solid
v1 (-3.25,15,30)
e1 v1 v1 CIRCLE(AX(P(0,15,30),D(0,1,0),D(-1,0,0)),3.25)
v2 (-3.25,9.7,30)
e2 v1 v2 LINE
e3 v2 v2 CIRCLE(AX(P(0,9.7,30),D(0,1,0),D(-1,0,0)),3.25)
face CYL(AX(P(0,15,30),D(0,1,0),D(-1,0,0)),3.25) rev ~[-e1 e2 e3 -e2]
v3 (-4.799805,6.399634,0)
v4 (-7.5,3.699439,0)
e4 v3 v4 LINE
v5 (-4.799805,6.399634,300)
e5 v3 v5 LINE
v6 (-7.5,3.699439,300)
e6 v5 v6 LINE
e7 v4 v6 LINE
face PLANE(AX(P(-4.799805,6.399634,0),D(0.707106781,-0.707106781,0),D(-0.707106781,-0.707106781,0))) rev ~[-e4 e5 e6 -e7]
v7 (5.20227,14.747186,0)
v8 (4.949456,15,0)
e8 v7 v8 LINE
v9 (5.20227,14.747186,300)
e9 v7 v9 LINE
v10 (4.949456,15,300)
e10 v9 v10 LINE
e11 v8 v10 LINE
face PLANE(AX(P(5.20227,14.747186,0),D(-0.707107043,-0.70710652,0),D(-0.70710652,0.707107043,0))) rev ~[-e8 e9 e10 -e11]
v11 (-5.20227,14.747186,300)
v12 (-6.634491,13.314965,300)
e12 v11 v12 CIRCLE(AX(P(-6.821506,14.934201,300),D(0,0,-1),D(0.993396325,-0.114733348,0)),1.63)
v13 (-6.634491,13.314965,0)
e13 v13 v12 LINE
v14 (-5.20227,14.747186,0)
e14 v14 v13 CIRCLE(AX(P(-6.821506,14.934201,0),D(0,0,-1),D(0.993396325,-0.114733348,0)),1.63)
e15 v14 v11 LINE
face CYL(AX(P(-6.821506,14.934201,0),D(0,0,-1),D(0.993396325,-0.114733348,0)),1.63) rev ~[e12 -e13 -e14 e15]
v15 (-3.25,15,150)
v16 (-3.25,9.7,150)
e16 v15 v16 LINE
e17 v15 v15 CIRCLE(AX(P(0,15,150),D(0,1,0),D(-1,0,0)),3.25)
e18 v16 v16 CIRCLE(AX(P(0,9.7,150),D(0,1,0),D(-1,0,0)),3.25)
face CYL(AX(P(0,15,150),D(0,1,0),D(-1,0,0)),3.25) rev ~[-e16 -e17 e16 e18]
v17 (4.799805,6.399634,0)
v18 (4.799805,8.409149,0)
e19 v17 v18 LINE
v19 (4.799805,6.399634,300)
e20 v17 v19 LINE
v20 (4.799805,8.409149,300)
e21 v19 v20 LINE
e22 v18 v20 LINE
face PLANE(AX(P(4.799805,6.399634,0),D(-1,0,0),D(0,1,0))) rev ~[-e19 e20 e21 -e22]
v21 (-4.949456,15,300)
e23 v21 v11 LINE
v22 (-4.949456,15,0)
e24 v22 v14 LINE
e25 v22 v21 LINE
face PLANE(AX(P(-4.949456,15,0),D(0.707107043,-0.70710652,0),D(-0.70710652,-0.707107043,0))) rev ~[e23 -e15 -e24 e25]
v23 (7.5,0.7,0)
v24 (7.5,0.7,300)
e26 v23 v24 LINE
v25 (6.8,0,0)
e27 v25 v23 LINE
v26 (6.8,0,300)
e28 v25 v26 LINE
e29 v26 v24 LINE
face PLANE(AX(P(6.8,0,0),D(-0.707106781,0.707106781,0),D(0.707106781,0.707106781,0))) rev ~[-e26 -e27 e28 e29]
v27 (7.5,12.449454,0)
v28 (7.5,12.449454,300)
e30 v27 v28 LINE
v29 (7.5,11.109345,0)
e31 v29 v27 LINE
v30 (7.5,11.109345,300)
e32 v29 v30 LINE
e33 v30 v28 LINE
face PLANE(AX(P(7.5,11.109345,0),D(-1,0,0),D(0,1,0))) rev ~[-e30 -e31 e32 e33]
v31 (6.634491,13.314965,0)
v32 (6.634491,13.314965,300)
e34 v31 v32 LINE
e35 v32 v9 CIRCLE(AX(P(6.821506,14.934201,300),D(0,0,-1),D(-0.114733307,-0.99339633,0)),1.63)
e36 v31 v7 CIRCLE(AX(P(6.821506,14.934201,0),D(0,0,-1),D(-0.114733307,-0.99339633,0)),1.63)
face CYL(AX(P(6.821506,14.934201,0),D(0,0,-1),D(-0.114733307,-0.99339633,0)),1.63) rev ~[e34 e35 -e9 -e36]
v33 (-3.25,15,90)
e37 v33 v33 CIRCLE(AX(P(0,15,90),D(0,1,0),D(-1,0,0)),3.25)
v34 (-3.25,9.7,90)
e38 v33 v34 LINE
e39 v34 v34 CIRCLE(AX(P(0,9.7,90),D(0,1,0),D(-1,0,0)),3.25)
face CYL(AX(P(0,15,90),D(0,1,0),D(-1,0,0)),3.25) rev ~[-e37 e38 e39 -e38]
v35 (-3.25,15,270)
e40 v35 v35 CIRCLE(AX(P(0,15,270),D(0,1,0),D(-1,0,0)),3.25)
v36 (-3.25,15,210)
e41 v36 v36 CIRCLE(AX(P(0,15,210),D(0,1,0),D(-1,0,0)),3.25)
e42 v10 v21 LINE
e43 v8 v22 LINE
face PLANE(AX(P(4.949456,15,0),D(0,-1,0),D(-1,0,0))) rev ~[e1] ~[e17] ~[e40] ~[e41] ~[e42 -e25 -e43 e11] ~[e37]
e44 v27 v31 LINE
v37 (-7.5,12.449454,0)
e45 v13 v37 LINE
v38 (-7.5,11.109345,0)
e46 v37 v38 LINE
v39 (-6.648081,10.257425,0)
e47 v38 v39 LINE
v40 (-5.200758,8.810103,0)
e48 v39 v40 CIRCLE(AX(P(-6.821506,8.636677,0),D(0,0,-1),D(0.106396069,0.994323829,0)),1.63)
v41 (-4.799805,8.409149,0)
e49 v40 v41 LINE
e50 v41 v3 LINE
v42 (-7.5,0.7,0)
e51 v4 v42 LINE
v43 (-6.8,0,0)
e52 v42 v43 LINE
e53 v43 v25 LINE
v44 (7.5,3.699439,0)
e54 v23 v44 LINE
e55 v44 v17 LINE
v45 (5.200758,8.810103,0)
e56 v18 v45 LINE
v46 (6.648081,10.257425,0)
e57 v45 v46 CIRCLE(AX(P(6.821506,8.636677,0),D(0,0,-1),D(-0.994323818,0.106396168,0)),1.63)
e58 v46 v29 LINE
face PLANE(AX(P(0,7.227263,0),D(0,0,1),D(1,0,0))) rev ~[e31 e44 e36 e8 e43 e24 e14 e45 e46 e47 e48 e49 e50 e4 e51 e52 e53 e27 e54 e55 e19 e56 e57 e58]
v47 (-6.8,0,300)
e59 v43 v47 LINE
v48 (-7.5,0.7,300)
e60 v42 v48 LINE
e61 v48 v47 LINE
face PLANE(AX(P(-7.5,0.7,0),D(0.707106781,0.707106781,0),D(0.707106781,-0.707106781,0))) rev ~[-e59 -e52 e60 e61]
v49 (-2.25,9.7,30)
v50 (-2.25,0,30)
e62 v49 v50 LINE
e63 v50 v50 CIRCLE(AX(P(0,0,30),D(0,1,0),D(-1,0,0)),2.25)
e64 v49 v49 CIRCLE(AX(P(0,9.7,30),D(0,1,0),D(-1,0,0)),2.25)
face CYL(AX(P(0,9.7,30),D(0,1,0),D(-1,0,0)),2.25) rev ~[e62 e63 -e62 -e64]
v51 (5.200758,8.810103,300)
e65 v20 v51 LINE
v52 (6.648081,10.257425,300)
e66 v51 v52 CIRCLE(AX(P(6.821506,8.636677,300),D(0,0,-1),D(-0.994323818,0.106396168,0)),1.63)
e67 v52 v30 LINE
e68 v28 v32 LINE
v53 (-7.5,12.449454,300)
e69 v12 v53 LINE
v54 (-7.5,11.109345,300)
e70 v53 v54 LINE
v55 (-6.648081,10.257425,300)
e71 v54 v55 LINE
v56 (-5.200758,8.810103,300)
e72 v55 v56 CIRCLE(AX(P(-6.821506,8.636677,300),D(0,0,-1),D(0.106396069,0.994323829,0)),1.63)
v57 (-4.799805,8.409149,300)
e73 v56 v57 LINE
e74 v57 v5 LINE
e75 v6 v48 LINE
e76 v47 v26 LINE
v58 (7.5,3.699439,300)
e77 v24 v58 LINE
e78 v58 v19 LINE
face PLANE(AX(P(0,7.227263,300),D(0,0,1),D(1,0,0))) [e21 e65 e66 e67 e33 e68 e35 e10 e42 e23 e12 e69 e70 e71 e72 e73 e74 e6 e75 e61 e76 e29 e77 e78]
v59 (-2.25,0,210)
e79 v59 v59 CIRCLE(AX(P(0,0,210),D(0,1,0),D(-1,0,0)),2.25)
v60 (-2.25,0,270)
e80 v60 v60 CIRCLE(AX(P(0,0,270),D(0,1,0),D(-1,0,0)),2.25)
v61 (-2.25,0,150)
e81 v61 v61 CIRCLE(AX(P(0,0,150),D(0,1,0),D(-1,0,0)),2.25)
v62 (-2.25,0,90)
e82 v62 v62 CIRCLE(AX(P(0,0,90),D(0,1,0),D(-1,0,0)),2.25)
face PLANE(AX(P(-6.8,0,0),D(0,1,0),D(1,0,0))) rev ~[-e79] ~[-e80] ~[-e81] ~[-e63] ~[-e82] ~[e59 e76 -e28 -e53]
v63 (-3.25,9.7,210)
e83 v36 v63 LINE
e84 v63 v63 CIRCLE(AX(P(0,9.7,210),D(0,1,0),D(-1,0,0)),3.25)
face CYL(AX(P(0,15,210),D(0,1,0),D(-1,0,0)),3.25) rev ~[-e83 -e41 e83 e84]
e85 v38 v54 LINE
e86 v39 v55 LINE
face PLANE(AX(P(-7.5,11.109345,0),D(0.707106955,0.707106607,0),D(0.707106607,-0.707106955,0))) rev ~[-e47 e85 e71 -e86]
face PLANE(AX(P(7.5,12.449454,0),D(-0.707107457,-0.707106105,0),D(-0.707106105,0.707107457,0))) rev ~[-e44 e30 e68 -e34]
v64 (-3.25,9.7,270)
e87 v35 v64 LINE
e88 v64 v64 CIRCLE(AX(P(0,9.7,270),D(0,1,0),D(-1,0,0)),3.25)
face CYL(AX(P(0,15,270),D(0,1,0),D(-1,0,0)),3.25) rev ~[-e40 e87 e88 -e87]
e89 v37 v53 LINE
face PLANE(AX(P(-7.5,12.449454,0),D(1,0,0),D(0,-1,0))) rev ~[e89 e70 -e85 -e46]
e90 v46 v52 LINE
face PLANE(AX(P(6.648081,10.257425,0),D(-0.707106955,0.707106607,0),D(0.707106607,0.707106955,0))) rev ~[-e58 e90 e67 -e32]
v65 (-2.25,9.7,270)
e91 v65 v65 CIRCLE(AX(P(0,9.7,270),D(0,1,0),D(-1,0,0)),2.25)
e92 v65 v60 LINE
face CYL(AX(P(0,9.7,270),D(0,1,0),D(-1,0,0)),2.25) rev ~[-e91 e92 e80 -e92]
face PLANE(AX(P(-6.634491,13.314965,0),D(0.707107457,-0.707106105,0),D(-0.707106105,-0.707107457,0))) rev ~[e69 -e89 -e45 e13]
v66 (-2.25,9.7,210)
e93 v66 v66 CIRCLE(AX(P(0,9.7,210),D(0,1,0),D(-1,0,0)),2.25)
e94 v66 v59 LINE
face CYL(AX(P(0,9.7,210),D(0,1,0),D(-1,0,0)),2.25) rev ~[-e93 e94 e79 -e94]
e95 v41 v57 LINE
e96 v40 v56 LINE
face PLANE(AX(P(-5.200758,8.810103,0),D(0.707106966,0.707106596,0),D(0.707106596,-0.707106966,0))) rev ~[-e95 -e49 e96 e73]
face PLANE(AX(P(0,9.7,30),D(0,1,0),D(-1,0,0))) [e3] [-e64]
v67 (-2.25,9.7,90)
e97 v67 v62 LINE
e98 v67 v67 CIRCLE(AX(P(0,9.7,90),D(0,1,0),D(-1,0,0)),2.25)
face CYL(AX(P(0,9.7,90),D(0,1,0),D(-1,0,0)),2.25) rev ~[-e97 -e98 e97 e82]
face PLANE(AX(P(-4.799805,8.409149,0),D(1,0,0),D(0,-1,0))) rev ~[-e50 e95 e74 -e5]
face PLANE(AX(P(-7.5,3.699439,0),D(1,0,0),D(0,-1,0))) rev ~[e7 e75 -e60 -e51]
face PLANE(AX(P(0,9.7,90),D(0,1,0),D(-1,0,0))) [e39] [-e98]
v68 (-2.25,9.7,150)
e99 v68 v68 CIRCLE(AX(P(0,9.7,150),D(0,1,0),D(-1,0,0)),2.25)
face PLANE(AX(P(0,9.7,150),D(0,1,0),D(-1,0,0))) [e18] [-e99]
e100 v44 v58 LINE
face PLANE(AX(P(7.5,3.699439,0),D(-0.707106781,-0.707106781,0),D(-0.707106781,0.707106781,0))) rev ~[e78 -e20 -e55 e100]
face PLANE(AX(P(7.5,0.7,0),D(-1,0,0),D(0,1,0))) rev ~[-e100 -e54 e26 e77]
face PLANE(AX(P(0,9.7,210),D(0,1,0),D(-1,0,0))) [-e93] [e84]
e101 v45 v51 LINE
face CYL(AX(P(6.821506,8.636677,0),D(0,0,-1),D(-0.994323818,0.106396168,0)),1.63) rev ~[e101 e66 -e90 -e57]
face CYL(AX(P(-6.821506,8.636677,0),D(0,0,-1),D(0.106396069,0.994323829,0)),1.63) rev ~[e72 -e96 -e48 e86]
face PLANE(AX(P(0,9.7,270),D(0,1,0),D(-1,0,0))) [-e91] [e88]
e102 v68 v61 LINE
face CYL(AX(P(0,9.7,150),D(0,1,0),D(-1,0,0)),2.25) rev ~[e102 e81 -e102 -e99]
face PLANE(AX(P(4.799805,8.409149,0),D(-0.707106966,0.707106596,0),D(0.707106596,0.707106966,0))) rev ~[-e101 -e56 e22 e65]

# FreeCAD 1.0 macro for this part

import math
import FreeCAD as App
import Part
import Sketcher
from FreeCAD import Vector
Q = App.Units.Quantity

doc = App.newDocument("Part")
params = doc.addObject("Spreadsheet::Sheet", "Params")
for row, (alias, value) in enumerate([
    ("sketch1_radius", "1.63 mm"),
    ("sketch1_width", "13.6 mm"),
    ("pad1_length", "300 mm"),
    ("sketch2_diameter", "6.5 mm"),
    ("pocket1_length", "5.3 mm"),
    ("sketch3_diameter", "4.5 mm"),
], start=1):
    params.set(f"A{row}", alias)
    params.set(f"B{row}", "=" + value)
    params.setAlias(f"B{row}", alias)

body = doc.addObject("PartDesign::Body", "Body")

# Sketch on XY plane
sketch1 = doc.addObject("Sketcher::SketchObject", "Sketch")
body.addObject(sketch1)
sketch1.AttachmentSupport = (doc.XY_Plane, [""])
sketch1.MapMode = "FlatFace"
sketch1.addGeometry([
    Part.LineSegment(Vector(6.8, 0, 0), Vector(7.5, 0.7, 0)),  # 0
    Part.LineSegment(Vector(7.5, 0.7, 0), Vector(7.5, 3.7, 0)),  # 1
    Part.LineSegment(Vector(7.5, 3.7, 0), Vector(4.8, 6.4, 0)),  # 2
    Part.LineSegment(Vector(4.8, 6.4, 0), Vector(4.8, 8.41, 0)),  # 3
    Part.LineSegment(Vector(4.8, 8.41, 0), Vector(5.2, 8.81, 0)),  # 4
    Part.ArcOfCircle(Part.Circle(Vector(6.82, 8.64, 0), Vector(0, 0, 1), 1.63), math.radians(96), math.radians(174)),  # 5
    Part.LineSegment(Vector(6.65, 10.26, 0), Vector(7.5, 11.11, 0)),  # 6
    Part.LineSegment(Vector(7.5, 11.11, 0), Vector(7.5, 12.45, 0)),  # 7
    Part.LineSegment(Vector(7.5, 12.45, 0), Vector(6.63, 13.31, 0)),  # 8
    Part.ArcOfCircle(Part.Circle(Vector(6.82, 14.93, 0), Vector(0, 0, 1), 1.63), math.radians(-173), math.radians(-97)),  # 9
    Part.LineSegment(Vector(5.2, 14.75, 0), Vector(4.95, 15, 0)),  # 10
    Part.LineSegment(Vector(4.95, 15, 0), Vector(-4.95, 15, 0)),  # 11
    Part.LineSegment(Vector(-4.95, 15, 0), Vector(-5.2, 14.75, 0)),  # 12
    Part.ArcOfCircle(Part.Circle(Vector(-6.82, 14.93, 0), Vector(0, 0, 1), 1.63), math.radians(-83), math.radians(-7)),  # 13
    Part.LineSegment(Vector(-6.63, 13.31, 0), Vector(-7.5, 12.45, 0)),  # 14
    Part.LineSegment(Vector(-7.5, 12.45, 0), Vector(-7.5, 11.11, 0)),  # 15
    Part.LineSegment(Vector(-7.5, 11.11, 0), Vector(-6.65, 10.26, 0)),  # 16
    Part.ArcOfCircle(Part.Circle(Vector(-6.82, 8.64, 0), Vector(0, 0, 1), 1.63), math.radians(6), math.radians(84)),  # 17
    Part.LineSegment(Vector(-5.2, 8.81, 0), Vector(-4.8, 8.41, 0)),  # 18
    Part.LineSegment(Vector(-4.8, 8.41, 0), Vector(-4.8, 6.4, 0)),  # 19
    Part.LineSegment(Vector(-4.8, 6.4, 0), Vector(-7.5, 3.7, 0)),  # 20
    Part.LineSegment(Vector(-7.5, 3.7, 0), Vector(-7.5, 0.7, 0)),  # 21
    Part.LineSegment(Vector(-7.5, 0.7, 0), Vector(-6.8, 0, 0)),  # 22
    Part.LineSegment(Vector(-6.8, 0, 0), Vector(6.8, 0, 0)),  # 23
], False)
sketch1.addConstraint([
    Sketcher.Constraint("Coincident", 0, 2, 1, 1),
    Sketcher.Constraint("Coincident", 1, 2, 2, 1),
    Sketcher.Constraint("Coincident", 2, 2, 3, 1),
    Sketcher.Constraint("Coincident", 3, 2, 4, 1),
    Sketcher.Constraint("Coincident", 4, 2, 5, 2),
    Sketcher.Constraint("Coincident", 5, 1, 6, 1),
    Sketcher.Constraint("Coincident", 6, 2, 7, 1),
    Sketcher.Constraint("Coincident", 7, 2, 8, 1),
    Sketcher.Constraint("Coincident", 8, 2, 9, 2),
    Sketcher.Constraint("Coincident", 9, 1, 10, 1),
    Sketcher.Constraint("Coincident", 10, 2, 11, 1),
    Sketcher.Constraint("Coincident", 11, 2, 12, 1),
    Sketcher.Constraint("Coincident", 12, 2, 13, 2),
    Sketcher.Constraint("Coincident", 13, 1, 14, 1),
    Sketcher.Constraint("Coincident", 14, 2, 15, 1),
    Sketcher.Constraint("Coincident", 15, 2, 16, 1),
    Sketcher.Constraint("Coincident", 16, 2, 17, 2),
    Sketcher.Constraint("Coincident", 17, 1, 18, 1),
    Sketcher.Constraint("Coincident", 18, 2, 19, 1),
    Sketcher.Constraint("Coincident", 19, 2, 20, 1),
    Sketcher.Constraint("Coincident", 20, 2, 21, 1),
    Sketcher.Constraint("Coincident", 21, 2, 22, 1),
    Sketcher.Constraint("Coincident", 22, 2, 23, 1),
    Sketcher.Constraint("Coincident", 23, 2, 0, 1),
    Sketcher.Constraint("Vertical", 1),
    Sketcher.Constraint("Vertical", 3),
    Sketcher.Constraint("Vertical", 7),
    Sketcher.Constraint("Horizontal", 11),
    Sketcher.Constraint("Vertical", 15),
    Sketcher.Constraint("Vertical", 19),
    Sketcher.Constraint("Vertical", 21),
    Sketcher.Constraint("Horizontal", 23),
    Sketcher.Constraint("Equal", 5, 9),
    Sketcher.Constraint("Equal", 9, 13),
    Sketcher.Constraint("Equal", 13, 17),
    Sketcher.Constraint("Symmetric", 22, 2, 23, 2, -1, 1),
    Sketcher.Constraint("Symmetric", 9, 3, 13, 3, -2),
    Sketcher.Constraint("Symmetric", 5, 3, 17, 3, -2),
    Sketcher.Constraint("Symmetric", 7, 2, 14, 2, -2),
    Sketcher.Constraint("Symmetric", 3, 2, 18, 2, -2),
    Sketcher.Constraint("Symmetric", 1, 2, 20, 2, -2),
    Sketcher.Constraint("Perpendicular", 0, 2),
    Sketcher.Constraint("Perpendicular", 2, 4),
    Sketcher.Constraint("Parallel", 4, 6),
    Sketcher.Constraint("Perpendicular", 6, 8),
    Sketcher.Constraint("Parallel", 8, 10),
    Sketcher.Constraint("Perpendicular", 10, 12),
    Sketcher.Constraint("Parallel", 12, 14),
    Sketcher.Constraint("Perpendicular", 14, 16),
    Sketcher.Constraint("Parallel", 16, 18),
    Sketcher.Constraint("Perpendicular", 18, 20),
    Sketcher.Constraint("Perpendicular", 20, 22),
    Sketcher.Constraint("Horizontal", 9, 1, 12, 2),
    Sketcher.Constraint("Horizontal", 8, 2, 13, 1),
    Sketcher.Constraint("Horizontal", 6, 2, 15, 2),
    Sketcher.Constraint("Vertical", 5, 3, 9, 3),
    Sketcher.Constraint("Vertical", 1, 2, 6, 2),
    Sketcher.Constraint("Radius", 5, Q("1.63 mm")),
    Sketcher.Constraint("DistanceX", 23, 1, 23, 2, Q("13.6 mm")),
    Sketcher.Constraint("DistanceY", -1, 1, 10, 2, Q("15 mm")),
    Sketcher.Constraint("DistanceX", -1, 1, 0, 2, Q("7.5 mm")),
    Sketcher.Constraint("DistanceY", 1, 1, 1, 2, Q("2.999439 mm")),
    Sketcher.Constraint("DistanceY", 7, 1, 7, 2, Q("1.340109 mm")),
    Sketcher.Constraint("DistanceY", -1, 1, 9, 3, Q("14.934201 mm")),
    Sketcher.Constraint("DistanceX", 2, 2, 5, 3, Q("2.021702 mm")),
    Sketcher.Constraint("DistanceY", 4, 2, 9, 3, Q("6.124098 mm")),
    Sketcher.Constraint("DistanceX", 11, 2, 11, 1, Q("9.898912 mm")),
    Sketcher.Constraint("DistanceY", 3, 1, 3, 2, Q("2.009515 mm")),
    Sketcher.Constraint("DistanceY", -1, 1, 3, 2, Q("8.409149 mm")),
    Sketcher.Constraint("DistanceX", -1, 1, 5, 1, Q("6.648081 mm")),
])
sketch1.setExpression("Constraints[57]", "Params.sketch1_radius")
sketch1.setExpression("Constraints[58]", "Params.sketch1_width")
pad1 = doc.addObject("PartDesign::Pad", "Pad")
body.addObject(pad1)
pad1.Profile = sketch1
pad1.setExpression("Length", "Params.pad1_length")

# Sketch on XZ plane
sketch2 = doc.addObject("Sketcher::SketchObject", "Sketch001")
body.addObject(sketch2)
sketch2.AttachmentSupport = (doc.XZ_Plane, [""])
sketch2.MapMode = "FlatFace"
sketch2.AttachmentOffset = App.Placement(Vector(0, 0, -15), App.Rotation())
sketch2.addGeometry([
    Part.Circle(Vector(0, 30, 0), Vector(0, 0, 1), 3.2),  # 0
    Part.Circle(Vector(0, 90, 0), Vector(0, 0, 1), 3.2),  # 1
    Part.Circle(Vector(0, 150, 0), Vector(0, 0, 1), 3.2),  # 2
    Part.Circle(Vector(0, 210, 0), Vector(0, 0, 1), 3.2),  # 3
    Part.Circle(Vector(0, 270, 0), Vector(0, 0, 1), 3.2),  # 4
    Part.Circle(Vector(0, 330, 0), Vector(0, 0, 1), 3.2),  # 5
    Part.Circle(Vector(0, 390, 0), Vector(0, 0, 1), 3.2),  # 6
    Part.Circle(Vector(0, 450, 0), Vector(0, 0, 1), 3.2),  # 7
    Part.Circle(Vector(0, 510, 0), Vector(0, 0, 1), 3.2),  # 8
    Part.Circle(Vector(0, 570, 0), Vector(0, 0, 1), 3.2),  # 9
], False)
sketch2.addConstraint([
    Sketcher.Constraint("Equal", 0, 1),
    Sketcher.Constraint("Equal", 1, 2),
    Sketcher.Constraint("Equal", 2, 3),
    Sketcher.Constraint("Equal", 3, 4),
    Sketcher.Constraint("Equal", 4, 5),
    Sketcher.Constraint("Equal", 5, 6),
    Sketcher.Constraint("Equal", 6, 7),
    Sketcher.Constraint("Equal", 7, 8),
    Sketcher.Constraint("Equal", 8, 9),
    Sketcher.Constraint("PointOnObject", 0, 3, -2),
    Sketcher.Constraint("PointOnObject", 1, 3, -2),
    Sketcher.Constraint("PointOnObject", 2, 3, -2),
    Sketcher.Constraint("PointOnObject", 3, 3, -2),
    Sketcher.Constraint("PointOnObject", 4, 3, -2),
    Sketcher.Constraint("PointOnObject", 5, 3, -2),
    Sketcher.Constraint("PointOnObject", 6, 3, -2),
    Sketcher.Constraint("PointOnObject", 7, 3, -2),
    Sketcher.Constraint("PointOnObject", 8, 3, -2),
    Sketcher.Constraint("PointOnObject", 9, 3, -2),
    Sketcher.Constraint("Diameter", 0, Q("6.5 mm")),
    Sketcher.Constraint("DistanceY", -1, 1, 0, 3, Q("30 mm")),
    Sketcher.Constraint("DistanceY", -1, 1, 1, 3, Q("90 mm")),
    Sketcher.Constraint("DistanceY", -1, 1, 2, 3, Q("150 mm")),
    Sketcher.Constraint("DistanceY", -1, 1, 3, 3, Q("210 mm")),
    Sketcher.Constraint("DistanceY", -1, 1, 4, 3, Q("270 mm")),
    Sketcher.Constraint("DistanceY", -1, 1, 5, 3, Q("330 mm")),
    Sketcher.Constraint("DistanceY", -1, 1, 6, 3, Q("390 mm")),
    Sketcher.Constraint("DistanceY", -1, 1, 7, 3, Q("450 mm")),
    Sketcher.Constraint("DistanceY", -1, 1, 8, 3, Q("510 mm")),
    Sketcher.Constraint("DistanceY", -1, 1, 9, 3, Q("570 mm")),
])
sketch2.setExpression("Constraints[19]", "Params.sketch2_diameter")
pocket1 = doc.addObject("PartDesign::Pocket", "Pocket")
body.addObject(pocket1)
pocket1.Profile = sketch2
pocket1.setExpression("Length", "Params.pocket1_length")
pocket1.Reversed = True

# Sketch on XZ plane
sketch3 = doc.addObject("Sketcher::SketchObject", "Sketch002")
body.addObject(sketch3)
sketch3.AttachmentSupport = (doc.XZ_Plane, [""])
sketch3.MapMode = "FlatFace"
sketch3.AttachmentOffset = App.Placement(Vector(0, 0, -9.7), App.Rotation())
sketch3.addGeometry([
    Part.Circle(Vector(0, 30, 0), Vector(0, 0, 1), 2.2),  # 0
    Part.Circle(Vector(0, 90, 0), Vector(0, 0, 1), 2.2),  # 1
    Part.Circle(Vector(0, 150, 0), Vector(0, 0, 1), 2.2),  # 2
    Part.Circle(Vector(0, 210, 0), Vector(0, 0, 1), 2.2),  # 3
    Part.Circle(Vector(0, 270, 0), Vector(0, 0, 1), 2.2),  # 4
    Part.Circle(Vector(0, 330, 0), Vector(0, 0, 1), 2.2),  # 5
    Part.Circle(Vector(0, 390, 0), Vector(0, 0, 1), 2.2),  # 6
    Part.Circle(Vector(0, 450, 0), Vector(0, 0, 1), 2.2),  # 7
    Part.Circle(Vector(0, 510, 0), Vector(0, 0, 1), 2.2),  # 8
    Part.Circle(Vector(0, 570, 0), Vector(0, 0, 1), 2.2),  # 9
], False)
sketch3.addConstraint([
    Sketcher.Constraint("Equal", 0, 1),
    Sketcher.Constraint("Equal", 1, 2),
    Sketcher.Constraint("Equal", 2, 3),
    Sketcher.Constraint("Equal", 3, 4),
    Sketcher.Constraint("Equal", 4, 5),
    Sketcher.Constraint("Equal", 5, 6),
    Sketcher.Constraint("Equal", 6, 7),
    Sketcher.Constraint("Equal", 7, 8),
    Sketcher.Constraint("Equal", 8, 9),
    Sketcher.Constraint("PointOnObject", 0, 3, -2),
    Sketcher.Constraint("PointOnObject", 1, 3, -2),
    Sketcher.Constraint("PointOnObject", 2, 3, -2),
    Sketcher.Constraint("PointOnObject", 3, 3, -2),
    Sketcher.Constraint("PointOnObject", 4, 3, -2),
    Sketcher.Constraint("PointOnObject", 5, 3, -2),
    Sketcher.Constraint("PointOnObject", 6, 3, -2),
    Sketcher.Constraint("PointOnObject", 7, 3, -2),
    Sketcher.Constraint("PointOnObject", 8, 3, -2),
    Sketcher.Constraint("PointOnObject", 9, 3, -2),
    Sketcher.Constraint("Diameter", 0, Q("4.5 mm")),
    Sketcher.Constraint("DistanceY", -1, 1, 0, 3, Q("30 mm")),
    Sketcher.Constraint("DistanceY", -1, 1, 1, 3, Q("90 mm")),
    Sketcher.Constraint("DistanceY", -1, 1, 2, 3, Q("150 mm")),
    Sketcher.Constraint("DistanceY", -1, 1, 3, 3, Q("210 mm")),
    Sketcher.Constraint("DistanceY", -1, 1, 4, 3, Q("270 mm")),
    Sketcher.Constraint("DistanceY", -1, 1, 5, 3, Q("330 mm")),
    Sketcher.Constraint("DistanceY", -1, 1, 6, 3, Q("390 mm")),
    Sketcher.Constraint("DistanceY", -1, 1, 7, 3, Q("450 mm")),
    Sketcher.Constraint("DistanceY", -1, 1, 8, 3, Q("510 mm")),
    Sketcher.Constraint("DistanceY", -1, 1, 9, 3, Q("570 mm")),
])
sketch3.setExpression("Constraints[19]", "Params.sketch3_diameter")
pocket2 = doc.addObject("PartDesign::Pocket", "Pocket001")
body.addObject(pocket2)
pocket2.Profile = sketch3
pocket2.Type = "ThroughAll"
pocket2.Reversed = True

doc.recompute()
